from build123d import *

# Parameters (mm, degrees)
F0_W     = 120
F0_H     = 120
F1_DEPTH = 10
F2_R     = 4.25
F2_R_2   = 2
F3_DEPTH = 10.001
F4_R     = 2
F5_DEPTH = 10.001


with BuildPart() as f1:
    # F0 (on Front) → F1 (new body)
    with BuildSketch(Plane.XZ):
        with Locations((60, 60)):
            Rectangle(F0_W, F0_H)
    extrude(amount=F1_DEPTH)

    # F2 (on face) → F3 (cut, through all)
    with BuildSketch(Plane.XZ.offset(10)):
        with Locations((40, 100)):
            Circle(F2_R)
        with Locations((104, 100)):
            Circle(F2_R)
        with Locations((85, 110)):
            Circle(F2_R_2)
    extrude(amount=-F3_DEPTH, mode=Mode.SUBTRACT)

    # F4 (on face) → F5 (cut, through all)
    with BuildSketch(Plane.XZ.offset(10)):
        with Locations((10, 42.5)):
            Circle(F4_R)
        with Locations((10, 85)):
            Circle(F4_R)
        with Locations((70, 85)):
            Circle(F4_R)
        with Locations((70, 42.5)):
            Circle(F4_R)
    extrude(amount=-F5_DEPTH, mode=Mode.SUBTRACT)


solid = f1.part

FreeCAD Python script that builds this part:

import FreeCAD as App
import Part
import Sketcher
from FreeCAD import Vector

doc = App.newDocument("Part")
params = doc.addObject("Spreadsheet::Sheet", "Params")
for row, (alias, value) in enumerate([
    ("sketch1_width", "120 mm"),
    ("pad1_length", "10 mm"),
    ("sketch2_diameter", "4 mm"),
    ("sketch2_diameter2", "8.5 mm"),
    ("sketch3_diameter", "4 mm"),
], start=1):
    params.set(f"A{row}", alias)
    params.set(f"B{row}", "=" + value)
    params.setAlias(f"B{row}", alias)

body = doc.addObject("PartDesign::Body", "Body")

sketch1 = doc.addObject("Sketcher::SketchObject", "Sketch")
body.addObject(sketch1)
sketch1.AttachmentSupport = (doc.XZ_Plane, [""])
sketch1.MapMode = "FlatFace"
sketch1.addGeometry(Part.LineSegment(Vector(0, 120, 0), Vector(0, 0, 0)), False)
sketch1.addGeometry(Part.LineSegment(Vector(0, 0, 0), Vector(120, 0, 0)), False)
sketch1.addGeometry(Part.LineSegment(Vector(120, 0, 0), Vector(120, 120, 0)), False)
sketch1.addGeometry(Part.LineSegment(Vector(120, 120, 0), Vector(0, 120, 0)), False)
sketch1.addConstraint(Sketcher.Constraint("Coincident", 0, 2, 1, 1))
sketch1.addConstraint(Sketcher.Constraint("Coincident", 1, 2, 2, 1))
sketch1.addConstraint(Sketcher.Constraint("Coincident", 2, 2, 3, 1))
sketch1.addConstraint(Sketcher.Constraint("Coincident", 3, 2, 0, 1))
sketch1.addConstraint(Sketcher.Constraint("Vertical", 0))
sketch1.addConstraint(Sketcher.Constraint("Horizontal", 1))
sketch1.addConstraint(Sketcher.Constraint("Vertical", 2))
sketch1.addConstraint(Sketcher.Constraint("Horizontal", 3))
sketch1.addConstraint(Sketcher.Constraint("Coincident", 0, 2, -1, 1))
sketch1.addConstraint(Sketcher.Constraint("Equal", 3, 0))
sketch1.addConstraint(Sketcher.Constraint("DistanceX", 1, 1, 1, 2, 120.0))
sketch1.setExpression("Constraints[10]", "Params.sketch1_width")
pad1 = doc.addObject("PartDesign::Pad", "Pad")
body.addObject(pad1)
pad1.Profile = sketch1
pad1.setExpression("Length", "Params.pad1_length")

sketch2 = doc.addObject("Sketcher::SketchObject", "Sketch001")
body.addObject(sketch2)
sketch2.AttachmentSupport = (doc.XZ_Plane, [""])
sketch2.MapMode = "FlatFace"
sketch2.AttachmentOffset = App.Placement(Vector(0, 0, 10), App.Rotation())
sketch2.addGeometry(Part.Circle(Vector(40, 100, 0), Vector(0, 0, 1), 4.2), False)
sketch2.addGeometry(Part.Circle(Vector(104, 100, 0), Vector(0, 0, 1), 4.2), False)
sketch2.addGeometry(Part.Circle(Vector(85, 110, 0), Vector(0, 0, 1), 2), False)
sketch2.addConstraint(Sketcher.Constraint("Equal", 0, 1))
sketch2.addConstraint(Sketcher.Constraint("Horizontal", 0, 3, 1, 3))
sketch2.addConstraint(Sketcher.Constraint("Diameter", 2, 4.0))
sketch2.addConstraint(Sketcher.Constraint("Diameter", 0, 8.5))
sketch2.addConstraint(Sketcher.Constraint("DistanceX", -1, 1, 0, 3, 40.0))
sketch2.addConstraint(Sketcher.Constraint("DistanceY", -1, 1, 0, 3, 100.0))
sketch2.addConstraint(Sketcher.Constraint("DistanceX", -1, 1, 1, 3, 104.0))
sketch2.addConstraint(Sketcher.Constraint("DistanceX", -1, 1, 2, 3, 85.0))
sketch2.addConstraint(Sketcher.Constraint("DistanceY", -1, 1, 2, 3, 110.0))
sketch2.setExpression("Constraints[2]", "Params.sketch2_diameter")
sketch2.setExpression("Constraints[3]", "Params.sketch2_diameter2")
pocket1 = doc.addObject("PartDesign::Pocket", "Pocket")
body.addObject(pocket1)
pocket1.Profile = sketch2
pocket1.Type = "ThroughAll"

sketch3 = doc.addObject("Sketcher::SketchObject", "Sketch002")
body.addObject(sketch3)
sketch3.AttachmentSupport = (doc.XZ_Plane, [""])
sketch3.MapMode = "FlatFace"
sketch3.AttachmentOffset = App.Placement(Vector(0, 0, 10), App.Rotation())
sketch3.addGeometry(Part.Circle(Vector(10, 42.5, 0), Vector(0, 0, 1), 2), False)
sketch3.addGeometry(Part.Circle(Vector(10, 85, 0), Vector(0, 0, 1), 2), False)
sketch3.addGeometry(Part.Circle(Vector(70, 85, 0), Vector(0, 0, 1), 2), False)
sketch3.addGeometry(Part.Circle(Vector(70, 42.5, 0), Vector(0, 0, 1), 2), False)
sketch3.addConstraint(Sketcher.Constraint("Equal", 0, 1))
sketch3.addConstraint(Sketcher.Constraint("Equal", 1, 2))
sketch3.addConstraint(Sketcher.Constraint("Equal", 2, 3))
sketch3.addConstraint(Sketcher.Constraint("Horizontal", 1, 3, 2, 3))
sketch3.addConstraint(Sketcher.Constraint("Horizontal", 0, 3, 3, 3))
sketch3.addConstraint(Sketcher.Constraint("Vertical", 0, 3, 1, 3))
sketch3.addConstraint(Sketcher.Constraint("Vertical", 2, 3, 3, 3))
sketch3.addConstraint(Sketcher.Constraint("Diameter", 0, 4.0))
sketch3.addConstraint(Sketcher.Constraint("DistanceX", -1, 1, 0, 3, 10.0))
sketch3.addConstraint(Sketcher.Constraint("DistanceY", -1, 1, 1, 3, 85.0))
sketch3.addConstraint(Sketcher.Constraint("DistanceX", -1, 1, 2, 3, 70.0))
sketch3.addConstraint(Sketcher.Constraint("DistanceY", -1, 1, 0, 3, 42.5))
sketch3.setExpression("Constraints[7]", "Params.sketch3_diameter")
pocket2 = doc.addObject("PartDesign::Pocket", "Pocket001")
body.addObject(pocket2)
pocket2.Profile = sketch3
pocket2.Type = "ThroughAll"

doc.recompute()
